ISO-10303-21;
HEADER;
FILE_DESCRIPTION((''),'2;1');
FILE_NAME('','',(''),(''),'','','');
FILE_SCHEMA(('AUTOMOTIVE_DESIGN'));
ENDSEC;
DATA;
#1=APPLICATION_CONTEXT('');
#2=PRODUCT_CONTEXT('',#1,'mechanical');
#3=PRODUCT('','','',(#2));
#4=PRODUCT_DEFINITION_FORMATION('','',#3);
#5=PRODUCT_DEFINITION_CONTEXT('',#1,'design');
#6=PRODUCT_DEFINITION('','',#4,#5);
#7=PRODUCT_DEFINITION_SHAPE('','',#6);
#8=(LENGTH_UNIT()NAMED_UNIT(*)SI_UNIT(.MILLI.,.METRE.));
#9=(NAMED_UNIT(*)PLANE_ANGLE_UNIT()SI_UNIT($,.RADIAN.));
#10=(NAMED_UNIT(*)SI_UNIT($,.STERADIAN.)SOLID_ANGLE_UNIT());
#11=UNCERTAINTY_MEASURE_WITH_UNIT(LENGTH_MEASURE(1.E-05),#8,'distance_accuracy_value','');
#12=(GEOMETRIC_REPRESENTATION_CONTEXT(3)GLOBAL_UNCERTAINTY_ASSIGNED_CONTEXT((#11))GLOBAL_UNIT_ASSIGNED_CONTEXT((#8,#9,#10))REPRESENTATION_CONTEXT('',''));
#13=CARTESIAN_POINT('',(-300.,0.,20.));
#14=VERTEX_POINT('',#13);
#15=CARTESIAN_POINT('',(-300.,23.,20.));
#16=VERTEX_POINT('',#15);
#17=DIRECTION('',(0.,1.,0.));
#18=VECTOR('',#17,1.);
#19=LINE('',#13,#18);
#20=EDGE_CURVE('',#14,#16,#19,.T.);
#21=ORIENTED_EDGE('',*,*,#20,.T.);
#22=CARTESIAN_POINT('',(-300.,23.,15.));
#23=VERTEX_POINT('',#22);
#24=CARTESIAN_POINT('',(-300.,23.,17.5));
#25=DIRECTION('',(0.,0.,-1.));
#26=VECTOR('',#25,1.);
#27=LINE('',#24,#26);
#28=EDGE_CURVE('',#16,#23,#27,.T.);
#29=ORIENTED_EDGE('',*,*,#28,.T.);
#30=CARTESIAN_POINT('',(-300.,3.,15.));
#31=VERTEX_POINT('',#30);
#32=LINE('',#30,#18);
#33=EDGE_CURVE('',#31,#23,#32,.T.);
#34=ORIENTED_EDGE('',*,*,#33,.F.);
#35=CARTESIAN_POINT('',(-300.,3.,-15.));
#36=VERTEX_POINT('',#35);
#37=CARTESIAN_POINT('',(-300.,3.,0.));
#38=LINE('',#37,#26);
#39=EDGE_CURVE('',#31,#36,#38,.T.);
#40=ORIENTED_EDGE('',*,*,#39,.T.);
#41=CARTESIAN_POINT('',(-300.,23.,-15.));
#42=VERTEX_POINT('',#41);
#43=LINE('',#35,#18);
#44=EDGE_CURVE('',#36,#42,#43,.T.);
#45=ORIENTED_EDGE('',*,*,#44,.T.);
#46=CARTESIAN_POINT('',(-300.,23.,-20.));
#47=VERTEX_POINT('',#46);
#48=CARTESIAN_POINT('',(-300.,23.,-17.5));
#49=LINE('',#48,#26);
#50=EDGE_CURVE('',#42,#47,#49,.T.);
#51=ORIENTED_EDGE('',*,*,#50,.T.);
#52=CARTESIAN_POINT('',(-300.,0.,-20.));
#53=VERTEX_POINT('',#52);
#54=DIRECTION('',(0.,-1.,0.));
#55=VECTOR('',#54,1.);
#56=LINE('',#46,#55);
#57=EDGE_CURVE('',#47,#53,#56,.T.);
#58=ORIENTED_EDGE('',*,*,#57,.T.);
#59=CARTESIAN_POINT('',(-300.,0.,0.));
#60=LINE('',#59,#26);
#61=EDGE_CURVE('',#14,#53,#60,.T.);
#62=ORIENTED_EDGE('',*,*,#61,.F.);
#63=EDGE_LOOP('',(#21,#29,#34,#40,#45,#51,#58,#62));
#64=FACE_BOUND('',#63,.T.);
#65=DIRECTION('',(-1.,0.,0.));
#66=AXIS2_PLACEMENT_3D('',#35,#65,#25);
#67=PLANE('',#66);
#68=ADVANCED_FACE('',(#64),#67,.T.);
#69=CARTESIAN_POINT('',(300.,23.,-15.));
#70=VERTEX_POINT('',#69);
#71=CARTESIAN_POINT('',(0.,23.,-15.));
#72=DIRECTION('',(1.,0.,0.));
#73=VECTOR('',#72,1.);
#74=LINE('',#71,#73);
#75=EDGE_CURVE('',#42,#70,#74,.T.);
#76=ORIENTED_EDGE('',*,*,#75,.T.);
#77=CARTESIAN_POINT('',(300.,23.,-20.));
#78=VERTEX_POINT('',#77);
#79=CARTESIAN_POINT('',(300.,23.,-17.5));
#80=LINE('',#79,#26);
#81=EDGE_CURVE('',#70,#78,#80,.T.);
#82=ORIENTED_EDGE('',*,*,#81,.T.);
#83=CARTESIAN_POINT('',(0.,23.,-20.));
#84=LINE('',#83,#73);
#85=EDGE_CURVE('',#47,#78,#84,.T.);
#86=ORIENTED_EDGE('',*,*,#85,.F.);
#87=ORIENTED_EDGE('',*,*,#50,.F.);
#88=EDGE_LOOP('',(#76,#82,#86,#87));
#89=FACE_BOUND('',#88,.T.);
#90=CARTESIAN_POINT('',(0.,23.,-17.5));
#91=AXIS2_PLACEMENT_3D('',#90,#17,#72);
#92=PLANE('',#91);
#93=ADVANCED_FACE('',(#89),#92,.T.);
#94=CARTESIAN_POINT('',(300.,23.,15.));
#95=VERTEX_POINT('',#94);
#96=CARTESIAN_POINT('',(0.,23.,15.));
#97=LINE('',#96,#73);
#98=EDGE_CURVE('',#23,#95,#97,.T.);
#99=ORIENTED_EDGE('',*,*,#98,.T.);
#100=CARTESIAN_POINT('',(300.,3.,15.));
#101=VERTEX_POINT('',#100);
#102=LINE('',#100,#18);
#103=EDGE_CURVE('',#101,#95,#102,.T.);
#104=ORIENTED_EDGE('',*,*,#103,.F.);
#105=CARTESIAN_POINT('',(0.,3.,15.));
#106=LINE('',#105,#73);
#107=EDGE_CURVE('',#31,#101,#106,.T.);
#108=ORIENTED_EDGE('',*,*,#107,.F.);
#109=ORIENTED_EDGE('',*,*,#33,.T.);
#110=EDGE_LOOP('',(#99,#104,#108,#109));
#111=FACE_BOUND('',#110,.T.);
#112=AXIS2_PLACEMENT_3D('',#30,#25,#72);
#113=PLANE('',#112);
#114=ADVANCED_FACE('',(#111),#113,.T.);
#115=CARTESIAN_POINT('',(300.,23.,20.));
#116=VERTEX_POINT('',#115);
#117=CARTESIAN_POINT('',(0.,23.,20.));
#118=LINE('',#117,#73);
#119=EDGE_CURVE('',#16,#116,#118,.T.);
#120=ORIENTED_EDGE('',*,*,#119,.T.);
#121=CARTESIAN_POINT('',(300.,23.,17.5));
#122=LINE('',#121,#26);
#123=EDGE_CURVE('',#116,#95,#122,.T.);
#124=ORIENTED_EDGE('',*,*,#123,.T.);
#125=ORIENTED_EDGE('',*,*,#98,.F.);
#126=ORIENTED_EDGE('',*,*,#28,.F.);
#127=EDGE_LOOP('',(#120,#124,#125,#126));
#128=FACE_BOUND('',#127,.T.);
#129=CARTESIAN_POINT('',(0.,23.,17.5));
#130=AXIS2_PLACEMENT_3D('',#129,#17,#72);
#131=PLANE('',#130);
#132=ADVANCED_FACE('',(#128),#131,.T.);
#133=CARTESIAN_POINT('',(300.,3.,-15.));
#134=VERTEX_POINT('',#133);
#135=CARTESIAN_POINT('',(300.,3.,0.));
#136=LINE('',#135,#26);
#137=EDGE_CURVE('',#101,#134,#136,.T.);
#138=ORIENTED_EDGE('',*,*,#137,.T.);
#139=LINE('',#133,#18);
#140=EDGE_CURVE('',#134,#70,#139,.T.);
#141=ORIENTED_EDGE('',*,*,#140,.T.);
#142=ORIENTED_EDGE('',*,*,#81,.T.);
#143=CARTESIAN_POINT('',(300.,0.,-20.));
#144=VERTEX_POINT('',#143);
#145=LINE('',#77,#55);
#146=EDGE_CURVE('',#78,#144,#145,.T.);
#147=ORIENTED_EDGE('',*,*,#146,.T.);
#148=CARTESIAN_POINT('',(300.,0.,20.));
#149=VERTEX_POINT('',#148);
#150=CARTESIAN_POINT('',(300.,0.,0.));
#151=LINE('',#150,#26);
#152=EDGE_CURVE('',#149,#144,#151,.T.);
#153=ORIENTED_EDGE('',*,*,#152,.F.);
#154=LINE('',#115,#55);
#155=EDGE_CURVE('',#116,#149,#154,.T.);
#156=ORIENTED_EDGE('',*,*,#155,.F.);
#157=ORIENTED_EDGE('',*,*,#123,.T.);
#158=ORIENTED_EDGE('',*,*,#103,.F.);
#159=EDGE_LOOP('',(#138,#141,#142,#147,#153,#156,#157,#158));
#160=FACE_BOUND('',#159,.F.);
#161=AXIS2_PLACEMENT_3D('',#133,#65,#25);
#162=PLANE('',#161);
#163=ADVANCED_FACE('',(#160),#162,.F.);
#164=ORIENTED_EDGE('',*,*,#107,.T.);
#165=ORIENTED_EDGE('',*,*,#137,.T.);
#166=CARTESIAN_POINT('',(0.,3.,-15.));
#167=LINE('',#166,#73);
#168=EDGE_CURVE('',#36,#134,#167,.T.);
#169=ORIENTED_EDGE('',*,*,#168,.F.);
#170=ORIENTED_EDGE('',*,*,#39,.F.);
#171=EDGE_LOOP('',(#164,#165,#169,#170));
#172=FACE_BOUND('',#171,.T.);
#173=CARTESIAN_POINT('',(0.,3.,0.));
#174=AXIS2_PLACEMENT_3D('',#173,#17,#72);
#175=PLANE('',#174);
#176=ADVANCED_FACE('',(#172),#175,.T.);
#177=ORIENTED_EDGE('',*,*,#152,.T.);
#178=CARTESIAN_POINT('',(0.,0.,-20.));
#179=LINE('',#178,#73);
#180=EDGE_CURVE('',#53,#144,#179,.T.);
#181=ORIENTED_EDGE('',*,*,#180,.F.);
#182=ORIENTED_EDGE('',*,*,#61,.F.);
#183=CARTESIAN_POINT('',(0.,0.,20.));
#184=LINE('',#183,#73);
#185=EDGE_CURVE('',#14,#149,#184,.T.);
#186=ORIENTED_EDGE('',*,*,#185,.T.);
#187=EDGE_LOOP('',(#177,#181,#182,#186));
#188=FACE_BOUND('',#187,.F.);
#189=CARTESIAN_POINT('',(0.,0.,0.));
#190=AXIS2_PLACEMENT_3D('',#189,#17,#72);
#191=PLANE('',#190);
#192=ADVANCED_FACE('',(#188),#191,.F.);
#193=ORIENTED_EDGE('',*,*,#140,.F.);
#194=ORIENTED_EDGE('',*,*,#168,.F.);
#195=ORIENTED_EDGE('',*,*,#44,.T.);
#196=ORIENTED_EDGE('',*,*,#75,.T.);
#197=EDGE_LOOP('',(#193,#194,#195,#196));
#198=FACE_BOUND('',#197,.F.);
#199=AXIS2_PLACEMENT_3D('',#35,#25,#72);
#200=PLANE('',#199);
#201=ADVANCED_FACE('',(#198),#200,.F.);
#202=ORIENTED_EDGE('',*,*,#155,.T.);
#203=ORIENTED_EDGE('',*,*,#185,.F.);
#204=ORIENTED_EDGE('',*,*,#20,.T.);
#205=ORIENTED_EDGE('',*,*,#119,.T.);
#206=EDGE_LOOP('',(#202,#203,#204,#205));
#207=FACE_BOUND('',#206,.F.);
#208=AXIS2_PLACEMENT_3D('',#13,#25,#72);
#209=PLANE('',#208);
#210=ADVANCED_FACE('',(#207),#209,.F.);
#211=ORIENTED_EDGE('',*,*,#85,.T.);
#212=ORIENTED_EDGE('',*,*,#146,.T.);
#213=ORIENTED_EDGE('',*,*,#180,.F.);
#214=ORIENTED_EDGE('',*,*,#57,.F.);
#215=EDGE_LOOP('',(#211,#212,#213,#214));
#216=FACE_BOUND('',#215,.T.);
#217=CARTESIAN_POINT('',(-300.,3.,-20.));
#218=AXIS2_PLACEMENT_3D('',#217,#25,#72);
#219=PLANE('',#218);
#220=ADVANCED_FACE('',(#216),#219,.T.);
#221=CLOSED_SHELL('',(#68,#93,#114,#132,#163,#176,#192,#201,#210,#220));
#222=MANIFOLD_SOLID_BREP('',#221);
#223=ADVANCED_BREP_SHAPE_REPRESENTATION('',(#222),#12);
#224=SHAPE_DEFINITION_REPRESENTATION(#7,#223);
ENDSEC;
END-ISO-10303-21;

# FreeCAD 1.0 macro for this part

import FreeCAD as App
import Part
import Sketcher
from FreeCAD import Vector


def add_polygon(sketch, points):
    """Adds a closed chain of lines whose ends are joined by coincident constraints."""
    first, n = sketch.GeometryCount, len(points)
    for a, b in zip(points, points[1:] + points[:1]):
        sketch.addGeometry(Part.LineSegment(App.Vector(*a, 0), App.Vector(*b, 0)), False)
    for i in range(n):
        sketch.addConstraint(Sketcher.Constraint("Coincident", first + i, 2, first + (i + 1) % n, 1))

doc = App.newDocument("Part")
params = doc.addObject("Spreadsheet::Sheet", "Params")
for row, (alias, value) in enumerate([
    ("sketch1_width", "600 mm"),
    ("sketch1_height", "40 mm"),
    ("pad1_length", "3 mm"),
    ("sketch2_width", "600 mm"),
    ("sketch2_height", "5 mm"),
    ("pad2_length", "20 mm"),
], start=1):
    params.set(f"A{row}", alias)
    params.set(f"B{row}", "=" + value)
    params.setAlias(f"B{row}", alias)

body = doc.addObject("PartDesign::Body", "Body")

# Sketch on XZ plane
sketch1 = body.newObject("Sketcher::SketchObject", "Sketch")
sketch1.AttachmentSupport = (doc.getObject("XZ_Plane"), [""])
sketch1.MapMode = "FlatFace"
add_polygon(sketch1, [(-300, -20), (-300, 20), (300, 20), (300, -20)])  # lines 0-3
sketch1.addConstraint(Sketcher.Constraint("Vertical", 0))
sketch1.addConstraint(Sketcher.Constraint("Horizontal", 1))
sketch1.addConstraint(Sketcher.Constraint("Vertical", 2))
sketch1.addConstraint(Sketcher.Constraint("Horizontal", 3))
sketch1.addConstraint(Sketcher.Constraint("Symmetric", 0, 2, 2, 2, -1, 1))
sketch1.addConstraint(Sketcher.Constraint("DistanceX", 1, 1, 1, 2, 600.0))
sketch1.addConstraint(Sketcher.Constraint("DistanceY", 0, 1, 0, 2, 40.0))
sketch1.setExpression("Constraints[9]", "Params.sketch1_width")
sketch1.setExpression("Constraints[10]", "Params.sketch1_height")
pad1 = body.newObject("PartDesign::Pad", "Pad")
pad1.Profile = sketch1
pad1.setExpression("Length", "Params.pad1_length")
pad1.Reversed = True

# Sketch on XZ plane
sketch2 = body.newObject("Sketcher::SketchObject", "Sketch001")
sketch2.AttachmentSupport = (doc.getObject("XZ_Plane"), [""])
sketch2.MapMode = "FlatFace"
sketch2.AttachmentOffset = App.Placement(Vector(0, 0, -3), App.Rotation())
add_polygon(sketch2, [(-300, -20), (-300, -15), (300, -15), (300, -20)])  # lines 0-3
add_polygon(sketch2, [(-300, 15), (-300, 20), (300, 20), (300, 15)])  # lines 4-7
sketch2.addConstraint(Sketcher.Constraint("Vertical", 0))
sketch2.addConstraint(Sketcher.Constraint("Horizontal", 1))
sketch2.addConstraint(Sketcher.Constraint("Vertical", 2))
sketch2.addConstraint(Sketcher.Constraint("Horizontal", 3))
sketch2.addConstraint(Sketcher.Constraint("Vertical", 4))
sketch2.addConstraint(Sketcher.Constraint("Horizontal", 5))
sketch2.addConstraint(Sketcher.Constraint("Vertical", 6))
sketch2.addConstraint(Sketcher.Constraint("Horizontal", 7))
sketch2.addConstraint(Sketcher.Constraint("Symmetric", 2, 2, 4, 2, -1, 1))
sketch2.addConstraint(Sketcher.Constraint("Symmetric", 0, 2, 6, 2, -1, 1))
sketch2.addConstraint(Sketcher.Constraint("Vertical", 3, 2, 4, 2))
sketch2.addConstraint(Sketcher.Constraint("DistanceX", 1, 1, 1, 2, 600.0))
sketch2.addConstraint(Sketcher.Constraint("DistanceY", 0, 1, 0, 2, 5.0))
sketch2.addConstraint(Sketcher.Constraint("DistanceY", 0, 2, -1, 1, 15.0))
sketch2.setExpression("Constraints[19]", "Params.sketch2_width")
sketch2.setExpression("Constraints[20]", "Params.sketch2_height")
pad2 = body.newObject("PartDesign::Pad", "Pad001")
pad2.Profile = sketch2
pad2.setExpression("Length", "Params.pad2_length")
pad2.Reversed = True

doc.recompute()
